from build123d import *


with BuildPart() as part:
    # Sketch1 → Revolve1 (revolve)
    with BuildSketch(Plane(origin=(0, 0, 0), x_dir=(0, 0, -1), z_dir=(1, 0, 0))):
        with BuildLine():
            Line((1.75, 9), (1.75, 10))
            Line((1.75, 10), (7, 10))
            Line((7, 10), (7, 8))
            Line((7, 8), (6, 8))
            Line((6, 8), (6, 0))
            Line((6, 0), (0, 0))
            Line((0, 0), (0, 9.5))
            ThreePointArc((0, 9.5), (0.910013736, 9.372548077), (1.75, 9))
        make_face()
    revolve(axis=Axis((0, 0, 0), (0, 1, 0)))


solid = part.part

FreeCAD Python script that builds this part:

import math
import FreeCAD as App
import Part
import Sketcher
from FreeCAD import Vector

doc = App.newDocument("Part")
body = doc.addObject("PartDesign::Body", "Body")

# Sketch on YZ plane
sketch1 = body.newObject("Sketcher::SketchObject", "Sketch")
sketch1.AttachmentSupport = (doc.getObject("YZ_Plane"), [""])
sketch1.MapMode = "FlatFace"
sketch1.addGeometry(Part.LineSegment(Vector(10, -1.8, 0), Vector(9, -1.8, 0)), False)
sketch1.addGeometry(Part.ArcOfCircle(Part.Circle(Vector(6.2, 0, 0), Vector(0, 0, 1), 3.3), math.radians(-32), math.radians(0)), False)
sketch1.addGeometry(Part.LineSegment(Vector(9.5, 0, 0), Vector(0, 0, 0)), False)
sketch1.addGeometry(Part.LineSegment(Vector(0, 0, 0), Vector(0, -6, 0)), False)
sketch1.addGeometry(Part.LineSegment(Vector(0, -6, 0), Vector(8, -6, 0)), False)
sketch1.addGeometry(Part.LineSegment(Vector(8, -6, 0), Vector(8, -7, 0)), False)
sketch1.addGeometry(Part.LineSegment(Vector(8, -7, 0), Vector(10, -7, 0)), False)
sketch1.addGeometry(Part.LineSegment(Vector(10, -7, 0), Vector(10, -1.8, 0)), False)
sketch1.addConstraint(Sketcher.Constraint("Coincident", 0, 2, 1, 1))
sketch1.addConstraint(Sketcher.Constraint("Coincident", 1, 2, 2, 1))
sketch1.addConstraint(Sketcher.Constraint("Coincident", 2, 2, 3, 1))
sketch1.addConstraint(Sketcher.Constraint("Coincident", 3, 2, 4, 1))
sketch1.addConstraint(Sketcher.Constraint("Coincident", 4, 2, 5, 1))
sketch1.addConstraint(Sketcher.Constraint("Coincident", 5, 2, 6, 1))
sketch1.addConstraint(Sketcher.Constraint("Coincident", 6, 2, 7, 1))
sketch1.addConstraint(Sketcher.Constraint("Coincident", 7, 2, 0, 1))
sketch1.addConstraint(Sketcher.Constraint("Horizontal", 0))
sketch1.addConstraint(Sketcher.Constraint("Horizontal", 2))
sketch1.addConstraint(Sketcher.Constraint("Vertical", 3))
sketch1.addConstraint(Sketcher.Constraint("Horizontal", 4))
sketch1.addConstraint(Sketcher.Constraint("Vertical", 5))
sketch1.addConstraint(Sketcher.Constraint("Horizontal", 6))
sketch1.addConstraint(Sketcher.Constraint("Vertical", 7))
sketch1.addConstraint(Sketcher.Constraint("Coincident", 2, 2, -1, 1))
sketch1.addConstraint(Sketcher.Constraint("PointOnObject", 1, 3, -1))
sketch1.addConstraint(Sketcher.Constraint("Equal", 0, 5))
sketch1.addConstraint(Sketcher.Constraint("DistanceX", 0, 2, 0, 1, 1.0))
sketch1.addConstraint(Sketcher.Constraint("DistanceX", 4, 1, 4, 2, 8.0))
sketch1.addConstraint(Sketcher.Constraint("DistanceX", 6, 1, 6, 2, 2.0))
sketch1.addConstraint(Sketcher.Constraint("DistanceY", 3, 2, 3, 1, 6.0))
sketch1.addConstraint(Sketcher.Constraint("DistanceX", 2, 2, 2, 1, 9.5))
sketch1.addConstraint(Sketcher.Constraint("DistanceY", 7, 1, 7, 2, 5.25))
revolution = body.newObject("PartDesign::Revolution", "Revolution")
revolution.Profile = sketch1
revolution.ReferenceAxis = (sketch1, ["H_Axis"])
revolution.Angle = 360

doc.recompute()
